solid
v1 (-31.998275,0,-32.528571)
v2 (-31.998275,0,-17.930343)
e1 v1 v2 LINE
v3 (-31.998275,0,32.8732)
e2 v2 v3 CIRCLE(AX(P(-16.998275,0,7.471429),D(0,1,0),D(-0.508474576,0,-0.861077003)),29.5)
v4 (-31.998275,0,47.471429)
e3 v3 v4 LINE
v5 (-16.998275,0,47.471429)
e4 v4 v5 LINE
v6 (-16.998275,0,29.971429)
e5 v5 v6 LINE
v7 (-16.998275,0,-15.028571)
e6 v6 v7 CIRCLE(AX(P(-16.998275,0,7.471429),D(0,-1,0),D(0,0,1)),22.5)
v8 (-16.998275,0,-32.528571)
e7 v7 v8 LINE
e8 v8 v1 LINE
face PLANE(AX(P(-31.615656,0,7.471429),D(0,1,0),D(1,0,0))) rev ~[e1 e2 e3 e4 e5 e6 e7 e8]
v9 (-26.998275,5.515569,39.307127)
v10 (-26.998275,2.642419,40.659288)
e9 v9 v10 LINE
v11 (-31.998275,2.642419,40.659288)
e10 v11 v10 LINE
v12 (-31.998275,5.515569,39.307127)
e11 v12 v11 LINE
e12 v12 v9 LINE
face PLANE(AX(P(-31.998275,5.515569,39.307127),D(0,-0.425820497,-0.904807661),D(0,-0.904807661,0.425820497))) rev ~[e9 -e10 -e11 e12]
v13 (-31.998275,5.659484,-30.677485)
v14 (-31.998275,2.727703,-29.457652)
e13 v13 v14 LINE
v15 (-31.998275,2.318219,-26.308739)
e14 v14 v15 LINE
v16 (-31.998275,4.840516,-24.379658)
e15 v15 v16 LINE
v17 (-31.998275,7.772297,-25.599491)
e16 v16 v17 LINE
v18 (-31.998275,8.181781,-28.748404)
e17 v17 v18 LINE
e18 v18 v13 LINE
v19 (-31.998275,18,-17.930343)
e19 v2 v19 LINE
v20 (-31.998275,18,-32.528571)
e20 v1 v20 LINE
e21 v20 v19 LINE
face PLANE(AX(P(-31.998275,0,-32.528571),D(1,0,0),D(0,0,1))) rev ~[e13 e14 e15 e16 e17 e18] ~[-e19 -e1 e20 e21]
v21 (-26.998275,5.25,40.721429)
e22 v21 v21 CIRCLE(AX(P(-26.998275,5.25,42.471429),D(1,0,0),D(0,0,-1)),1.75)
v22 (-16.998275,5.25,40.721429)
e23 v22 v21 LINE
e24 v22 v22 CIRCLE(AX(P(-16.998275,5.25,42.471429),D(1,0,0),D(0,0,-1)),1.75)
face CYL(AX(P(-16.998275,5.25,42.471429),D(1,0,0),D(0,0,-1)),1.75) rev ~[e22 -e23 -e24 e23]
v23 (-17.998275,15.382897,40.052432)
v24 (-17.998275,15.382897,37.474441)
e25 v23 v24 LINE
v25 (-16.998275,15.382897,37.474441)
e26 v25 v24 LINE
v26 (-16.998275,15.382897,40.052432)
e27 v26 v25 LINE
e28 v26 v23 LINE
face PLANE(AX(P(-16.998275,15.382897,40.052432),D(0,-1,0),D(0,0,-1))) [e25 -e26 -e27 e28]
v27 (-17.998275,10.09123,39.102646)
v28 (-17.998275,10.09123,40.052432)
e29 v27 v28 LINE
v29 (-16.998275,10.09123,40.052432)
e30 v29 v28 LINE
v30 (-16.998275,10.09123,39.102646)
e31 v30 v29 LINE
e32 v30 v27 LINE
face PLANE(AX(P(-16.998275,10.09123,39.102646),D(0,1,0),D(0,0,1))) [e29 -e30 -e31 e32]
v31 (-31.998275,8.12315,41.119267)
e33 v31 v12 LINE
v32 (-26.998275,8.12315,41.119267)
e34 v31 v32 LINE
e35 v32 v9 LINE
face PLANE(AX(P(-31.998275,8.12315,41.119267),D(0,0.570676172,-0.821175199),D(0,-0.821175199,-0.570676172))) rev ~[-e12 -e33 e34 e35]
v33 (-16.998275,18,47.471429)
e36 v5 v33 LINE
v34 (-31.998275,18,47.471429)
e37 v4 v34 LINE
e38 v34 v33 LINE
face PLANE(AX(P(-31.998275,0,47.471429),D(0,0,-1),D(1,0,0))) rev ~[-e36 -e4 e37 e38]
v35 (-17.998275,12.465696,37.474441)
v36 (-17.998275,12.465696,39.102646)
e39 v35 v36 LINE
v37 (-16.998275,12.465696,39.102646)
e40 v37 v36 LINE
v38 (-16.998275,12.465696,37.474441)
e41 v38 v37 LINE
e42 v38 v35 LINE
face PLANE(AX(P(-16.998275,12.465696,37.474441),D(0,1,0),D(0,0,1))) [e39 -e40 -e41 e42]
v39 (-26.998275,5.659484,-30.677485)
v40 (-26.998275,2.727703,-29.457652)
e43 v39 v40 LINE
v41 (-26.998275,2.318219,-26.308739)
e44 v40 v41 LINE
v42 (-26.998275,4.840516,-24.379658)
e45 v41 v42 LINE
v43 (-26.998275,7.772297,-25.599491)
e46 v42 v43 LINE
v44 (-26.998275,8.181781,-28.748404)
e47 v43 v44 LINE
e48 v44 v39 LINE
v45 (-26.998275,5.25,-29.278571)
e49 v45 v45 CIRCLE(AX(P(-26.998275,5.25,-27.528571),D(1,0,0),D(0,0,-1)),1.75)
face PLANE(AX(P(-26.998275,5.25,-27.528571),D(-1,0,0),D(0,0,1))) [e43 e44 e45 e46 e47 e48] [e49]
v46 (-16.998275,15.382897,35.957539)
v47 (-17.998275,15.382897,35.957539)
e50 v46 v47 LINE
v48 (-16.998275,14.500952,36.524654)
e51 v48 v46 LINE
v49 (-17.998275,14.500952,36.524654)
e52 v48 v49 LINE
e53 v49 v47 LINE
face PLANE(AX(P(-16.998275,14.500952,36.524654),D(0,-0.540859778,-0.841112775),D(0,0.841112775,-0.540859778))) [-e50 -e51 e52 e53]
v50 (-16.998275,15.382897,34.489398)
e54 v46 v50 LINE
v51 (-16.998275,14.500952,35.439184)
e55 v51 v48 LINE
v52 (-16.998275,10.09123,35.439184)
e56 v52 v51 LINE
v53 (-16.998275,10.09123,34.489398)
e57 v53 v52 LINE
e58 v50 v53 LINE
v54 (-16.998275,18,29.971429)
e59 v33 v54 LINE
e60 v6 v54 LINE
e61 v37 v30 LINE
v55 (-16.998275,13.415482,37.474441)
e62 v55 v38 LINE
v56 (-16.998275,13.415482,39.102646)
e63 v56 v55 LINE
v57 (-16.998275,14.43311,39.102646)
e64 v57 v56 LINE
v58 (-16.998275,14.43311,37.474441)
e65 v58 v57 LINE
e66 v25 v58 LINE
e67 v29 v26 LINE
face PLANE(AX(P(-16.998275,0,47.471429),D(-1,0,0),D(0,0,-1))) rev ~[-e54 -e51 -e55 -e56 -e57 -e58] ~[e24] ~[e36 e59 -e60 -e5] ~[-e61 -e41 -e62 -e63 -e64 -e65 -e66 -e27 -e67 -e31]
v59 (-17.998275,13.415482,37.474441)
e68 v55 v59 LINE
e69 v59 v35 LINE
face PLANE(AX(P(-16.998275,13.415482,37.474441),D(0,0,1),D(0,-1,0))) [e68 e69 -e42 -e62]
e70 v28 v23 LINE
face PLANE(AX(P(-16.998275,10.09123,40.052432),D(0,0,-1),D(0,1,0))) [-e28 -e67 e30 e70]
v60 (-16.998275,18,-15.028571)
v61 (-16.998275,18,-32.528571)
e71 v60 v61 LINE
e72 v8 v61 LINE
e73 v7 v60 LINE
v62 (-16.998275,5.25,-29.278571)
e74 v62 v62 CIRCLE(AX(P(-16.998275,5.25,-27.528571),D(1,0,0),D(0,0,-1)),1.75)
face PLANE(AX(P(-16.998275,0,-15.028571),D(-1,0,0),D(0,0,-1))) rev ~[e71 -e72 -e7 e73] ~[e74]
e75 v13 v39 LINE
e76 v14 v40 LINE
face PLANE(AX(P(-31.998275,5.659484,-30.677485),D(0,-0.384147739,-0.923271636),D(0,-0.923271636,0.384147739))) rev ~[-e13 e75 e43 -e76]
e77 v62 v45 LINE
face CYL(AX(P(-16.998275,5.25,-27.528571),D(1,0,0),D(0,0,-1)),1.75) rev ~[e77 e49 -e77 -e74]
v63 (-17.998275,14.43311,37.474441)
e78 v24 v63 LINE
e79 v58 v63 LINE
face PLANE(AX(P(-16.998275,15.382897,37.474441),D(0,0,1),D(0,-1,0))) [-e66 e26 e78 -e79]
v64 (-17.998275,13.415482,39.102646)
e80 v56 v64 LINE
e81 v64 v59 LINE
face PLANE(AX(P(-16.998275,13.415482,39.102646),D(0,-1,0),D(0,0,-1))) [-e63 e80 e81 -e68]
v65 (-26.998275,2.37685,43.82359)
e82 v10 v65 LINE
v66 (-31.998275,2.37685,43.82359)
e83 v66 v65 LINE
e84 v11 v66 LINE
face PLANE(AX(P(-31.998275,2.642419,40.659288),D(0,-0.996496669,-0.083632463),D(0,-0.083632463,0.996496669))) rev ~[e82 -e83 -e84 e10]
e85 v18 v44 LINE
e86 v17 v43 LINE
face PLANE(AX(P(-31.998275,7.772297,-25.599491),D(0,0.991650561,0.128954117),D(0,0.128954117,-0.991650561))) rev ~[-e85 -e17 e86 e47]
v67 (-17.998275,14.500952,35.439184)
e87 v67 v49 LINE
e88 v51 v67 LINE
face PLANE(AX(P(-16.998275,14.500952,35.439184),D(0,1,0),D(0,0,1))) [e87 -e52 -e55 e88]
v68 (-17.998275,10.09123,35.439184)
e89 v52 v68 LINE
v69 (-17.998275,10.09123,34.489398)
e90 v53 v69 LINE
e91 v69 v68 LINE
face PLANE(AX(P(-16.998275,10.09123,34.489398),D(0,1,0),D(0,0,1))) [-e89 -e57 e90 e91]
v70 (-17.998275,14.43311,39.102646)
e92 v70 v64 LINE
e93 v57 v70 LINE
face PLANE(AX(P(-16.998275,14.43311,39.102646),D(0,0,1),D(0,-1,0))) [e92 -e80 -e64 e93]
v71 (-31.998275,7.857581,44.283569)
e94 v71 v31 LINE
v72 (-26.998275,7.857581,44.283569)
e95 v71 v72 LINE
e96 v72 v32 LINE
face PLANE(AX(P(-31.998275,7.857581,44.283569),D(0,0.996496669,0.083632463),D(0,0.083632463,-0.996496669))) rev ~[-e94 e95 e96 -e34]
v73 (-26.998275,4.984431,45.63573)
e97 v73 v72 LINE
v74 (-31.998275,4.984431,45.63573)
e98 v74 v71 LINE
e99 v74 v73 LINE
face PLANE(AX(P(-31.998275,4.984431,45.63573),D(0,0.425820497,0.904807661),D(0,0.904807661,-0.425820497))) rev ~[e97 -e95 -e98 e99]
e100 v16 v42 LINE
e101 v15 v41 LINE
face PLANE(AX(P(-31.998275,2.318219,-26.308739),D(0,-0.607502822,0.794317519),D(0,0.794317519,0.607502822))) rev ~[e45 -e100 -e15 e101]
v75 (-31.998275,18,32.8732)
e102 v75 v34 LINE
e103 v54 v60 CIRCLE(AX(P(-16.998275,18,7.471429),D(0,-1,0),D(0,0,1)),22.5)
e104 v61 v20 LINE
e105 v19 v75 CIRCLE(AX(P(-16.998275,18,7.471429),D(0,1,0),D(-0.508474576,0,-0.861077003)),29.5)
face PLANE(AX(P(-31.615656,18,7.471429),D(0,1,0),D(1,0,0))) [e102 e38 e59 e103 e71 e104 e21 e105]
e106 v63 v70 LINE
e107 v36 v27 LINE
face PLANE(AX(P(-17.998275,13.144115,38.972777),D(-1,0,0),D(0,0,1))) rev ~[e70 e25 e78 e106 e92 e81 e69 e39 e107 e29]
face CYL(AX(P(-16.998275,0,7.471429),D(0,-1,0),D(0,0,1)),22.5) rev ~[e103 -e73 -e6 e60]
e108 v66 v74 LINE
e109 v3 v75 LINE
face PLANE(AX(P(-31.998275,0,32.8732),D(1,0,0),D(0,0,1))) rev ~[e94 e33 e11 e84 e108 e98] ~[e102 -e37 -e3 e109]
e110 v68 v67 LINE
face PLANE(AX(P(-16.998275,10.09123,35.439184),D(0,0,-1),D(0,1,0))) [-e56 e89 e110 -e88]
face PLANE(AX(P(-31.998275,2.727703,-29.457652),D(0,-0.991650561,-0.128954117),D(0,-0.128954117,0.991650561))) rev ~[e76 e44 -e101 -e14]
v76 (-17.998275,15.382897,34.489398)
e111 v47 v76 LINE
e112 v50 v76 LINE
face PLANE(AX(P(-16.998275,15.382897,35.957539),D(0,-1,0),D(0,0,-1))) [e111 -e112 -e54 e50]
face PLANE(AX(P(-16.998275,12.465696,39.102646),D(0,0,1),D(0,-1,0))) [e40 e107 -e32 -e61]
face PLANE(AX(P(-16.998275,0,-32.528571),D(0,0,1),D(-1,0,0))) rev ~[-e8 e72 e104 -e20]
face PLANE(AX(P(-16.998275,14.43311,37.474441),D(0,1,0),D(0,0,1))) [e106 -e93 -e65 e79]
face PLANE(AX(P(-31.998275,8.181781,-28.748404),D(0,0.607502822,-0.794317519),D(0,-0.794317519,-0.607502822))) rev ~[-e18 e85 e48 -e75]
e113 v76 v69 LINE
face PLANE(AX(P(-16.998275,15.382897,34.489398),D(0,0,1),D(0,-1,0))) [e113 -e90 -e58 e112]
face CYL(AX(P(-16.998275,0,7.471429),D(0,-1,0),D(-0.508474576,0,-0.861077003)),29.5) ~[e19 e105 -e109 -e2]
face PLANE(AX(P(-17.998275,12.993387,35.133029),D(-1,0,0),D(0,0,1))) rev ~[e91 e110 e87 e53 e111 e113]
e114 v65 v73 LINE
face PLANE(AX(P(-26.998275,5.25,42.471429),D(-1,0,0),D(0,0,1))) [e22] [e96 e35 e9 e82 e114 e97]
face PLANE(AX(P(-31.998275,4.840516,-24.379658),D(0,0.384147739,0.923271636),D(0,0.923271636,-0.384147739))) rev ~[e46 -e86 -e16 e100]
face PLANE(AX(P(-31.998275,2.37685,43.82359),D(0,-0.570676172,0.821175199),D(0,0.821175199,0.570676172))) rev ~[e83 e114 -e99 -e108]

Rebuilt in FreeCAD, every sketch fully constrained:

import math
import FreeCAD as App
import Part
import Sketcher
from FreeCAD import Vector
Q = App.Units.Quantity


def add_polygon(sketch, points):
    """Adds a closed chain of lines whose ends are joined by coincident constraints."""
    first, n = sketch.GeometryCount, len(points)
    for a, b in zip(points, points[1:] + points[:1]):
        sketch.addGeometry(Part.LineSegment(App.Vector(*a, 0), App.Vector(*b, 0)), False)
    for i in range(n):
        sketch.addConstraint(Sketcher.Constraint("Coincident", first + i, 2, first + (i + 1) % n, 1))

doc = App.newDocument("Part")
body = doc.addObject("PartDesign::Body", "Body")

sketch1 = body.newObject("Sketcher::SketchObject", "Sketch")
sketch1.AttachmentSupport = (doc.getObject("XZ_Plane"), [""])
sketch1.MapMode = "FlatFace"
sketch1.addGeometry(Part.ArcOfCircle(Part.Circle(Vector(-17, 7, 0), Vector(0, 0, 1), 30), math.radians(121), math.radians(239)), False)
sketch1.addGeometry(Part.LineSegment(Vector(-32, 33, 0), Vector(-32, 47, 0)), False)
sketch1.addGeometry(Part.LineSegment(Vector(-32, 47, 0), Vector(-17, 47, 0)), False)
sketch1.addGeometry(Part.LineSegment(Vector(-17, 47, 0), Vector(-17, 30, 0)), False)
sketch1.addGeometry(Part.ArcOfCircle(Part.Circle(Vector(-17, 7, 0), Vector(0, 0, 1), 22), math.radians(90), math.radians(270)), False)
sketch1.addGeometry(Part.LineSegment(Vector(-17, -15, 0), Vector(-17, -33, 0)), False)
sketch1.addGeometry(Part.LineSegment(Vector(-17, -33, 0), Vector(-32, -33, 0)), False)
sketch1.addGeometry(Part.LineSegment(Vector(-32, -33, 0), Vector(-32, -18, 0)), False)
sketch1.addConstraint(Sketcher.Constraint("Coincident", 0, 1, 1, 1))
sketch1.addConstraint(Sketcher.Constraint("Coincident", 1, 2, 2, 1))
sketch1.addConstraint(Sketcher.Constraint("Coincident", 2, 2, 3, 1))
sketch1.addConstraint(Sketcher.Constraint("Coincident", 3, 2, 4, 1))
sketch1.addConstraint(Sketcher.Constraint("Coincident", 4, 2, 5, 1))
sketch1.addConstraint(Sketcher.Constraint("Coincident", 5, 2, 6, 1))
sketch1.addConstraint(Sketcher.Constraint("Coincident", 6, 2, 7, 1))
sketch1.addConstraint(Sketcher.Constraint("Coincident", 7, 2, 0, 2))
sketch1.addConstraint(Sketcher.Constraint("Vertical", 1))
sketch1.addConstraint(Sketcher.Constraint("Horizontal", 2))
sketch1.addConstraint(Sketcher.Constraint("Vertical", 3))
sketch1.addConstraint(Sketcher.Constraint("Vertical", 5))
sketch1.addConstraint(Sketcher.Constraint("Horizontal", 6))
sketch1.addConstraint(Sketcher.Constraint("Vertical", 7))
sketch1.addConstraint(Sketcher.Constraint("Coincident", 4, 3, 0, 3))
sketch1.addConstraint(Sketcher.Constraint("Vertical", 4, 3, 2, 2))
sketch1.addConstraint(Sketcher.Constraint("Vertical", 3, 2, 4, 2))
sketch1.addConstraint(Sketcher.Constraint("Vertical", 1, 2, 6, 2))
sketch1.addConstraint(Sketcher.Constraint("Equal", 3, 5))
sketch1.addConstraint(Sketcher.Constraint("Radius", 0, Q("29.5 mm")))
sketch1.addConstraint(Sketcher.Constraint("Radius", 4, Q("22.5 mm")))
sketch1.addConstraint(Sketcher.Constraint("DistanceX", 2, 1, 2, 2, Q("15 mm")))
sketch1.addConstraint(Sketcher.Constraint("DistanceY", 3, 2, 3, 1, Q("17.5 mm")))
sketch1.addConstraint(Sketcher.Constraint("DistanceY", -1, 1, 0, 1, Q("32.8732 mm")))
sketch1.addConstraint(Sketcher.Constraint("DistanceX", 0, 3, -1, 1, Q("16.998275 mm")))
pad1 = body.newObject("PartDesign::Pad", "Pad")
pad1.Profile = sketch1
pad1.Length = 18
pad1.Reversed = True

sketch2 = body.newObject("Sketcher::SketchObject", "Sketch001")
sketch2.AttachmentSupport = (doc.getObject("YZ_Plane"), [""])
sketch2.MapMode = "FlatFace"
sketch2.AttachmentOffset = App.Placement(Vector(0, 0, -16.998275), App.Rotation())
sketch2.addGeometry(Part.Circle(Vector(5.2, 42.5, 0), Vector(0, 0, 1), 1.8), False)
sketch2.addGeometry(Part.Circle(Vector(5.2, -27.5, 0), Vector(0, 0, 1), 1.8), False)
sketch2.addConstraint(Sketcher.Constraint("Equal", 0, 1))
sketch2.addConstraint(Sketcher.Constraint("Vertical", 0, 3, 1, 3))
sketch2.addConstraint(Sketcher.Constraint("Diameter", 0, Q("3.5 mm")))
sketch2.addConstraint(Sketcher.Constraint("DistanceY", 1, 3, 0, 3, Q("70 mm")))
sketch2.addConstraint(Sketcher.Constraint("DistanceX", -1, 1, 0, 3, Q("5.25 mm")))
sketch2.addConstraint(Sketcher.Constraint("DistanceY", -1, 1, 0, 3, Q("42.471429 mm")))
pocket1 = body.newObject("PartDesign::Pocket", "Pocket")
pocket1.Profile = sketch2
pocket1.Type = "ThroughAll"

sketch3 = body.newObject("Sketcher::SketchObject", "Sketch002")
sketch3.AttachmentSupport = (doc.getObject("YZ_Plane"), [""])
sketch3.MapMode = "FlatFace"
sketch3.AttachmentOffset = App.Placement(Vector(0, 0, -16.998275), App.Rotation())
add_polygon(sketch3, [(15.4, 37.5), (15.4, 40.1), (10.1, 40.1), (10.1, 39.1), (12.5, 39.1), (12.5, 37.5), (13.4, 37.5), (13.4, 39.1), (14.4, 39.1), (14.4, 37.5)])
add_polygon(sketch3, [(15.4, 34.5), (15.4, 36), (14.5, 36.5), (14.5, 35.4), (10.1, 35.4), (10.1, 34.5)])
sketch3.addConstraint(Sketcher.Constraint("Vertical", 0))
sketch3.addConstraint(Sketcher.Constraint("Horizontal", 1))
sketch3.addConstraint(Sketcher.Constraint("Vertical", 2))
sketch3.addConstraint(Sketcher.Constraint("Horizontal", 3))
sketch3.addConstraint(Sketcher.Constraint("Vertical", 4))
sketch3.addConstraint(Sketcher.Constraint("Horizontal", 5))
sketch3.addConstraint(Sketcher.Constraint("Vertical", 6))
sketch3.addConstraint(Sketcher.Constraint("Horizontal", 7))
sketch3.addConstraint(Sketcher.Constraint("Vertical", 8))
sketch3.addConstraint(Sketcher.Constraint("Horizontal", 9))
sketch3.addConstraint(Sketcher.Constraint("Vertical", 10))
sketch3.addConstraint(Sketcher.Constraint("Vertical", 12))
sketch3.addConstraint(Sketcher.Constraint("Horizontal", 13))
sketch3.addConstraint(Sketcher.Constraint("Vertical", 14))
sketch3.addConstraint(Sketcher.Constraint("Horizontal", 15))
sketch3.addConstraint(Sketcher.Constraint("Horizontal", 3, 2, 6, 2))
sketch3.addConstraint(Sketcher.Constraint("Horizontal", 5, 2, 8, 2))
sketch3.addConstraint(Sketcher.Constraint("Vertical", 9, 2, 10, 2))
sketch3.addConstraint(Sketcher.Constraint("Vertical", 2, 2, 13, 2))
sketch3.addConstraint(Sketcher.Constraint("Equal", 5, 9))
sketch3.addConstraint(Sketcher.Constraint("Equal", 9, 2))
sketch3.addConstraint(Sketcher.Constraint("Equal", 2, 14))
sketch3.addConstraint(Sketcher.Constraint("DistanceX", 7, 1, 7, 2, Q("1.017628 mm")))
sketch3.addConstraint(Sketcher.Constraint("DistanceY", 0, 1, 0, 2, Q("2.577991 mm")))
sketch3.addConstraint(Sketcher.Constraint("DistanceY", 10, 1, 10, 2, Q("1.468141 mm")))
sketch3.addConstraint(Sketcher.Constraint("DistanceY", 12, 2, 12, 1, Q("1.08547 mm")))
sketch3.addConstraint(Sketcher.Constraint("DistanceX", 3, 2, 0, 2, Q("2.917201 mm")))
sketch3.addConstraint(Sketcher.Constraint("DistanceX", 1, 2, 1, 1, Q("5.291667 mm")))
sketch3.addConstraint(Sketcher.Constraint("DistanceX", 13, 2, 13, 1, Q("4.409722 mm")))
sketch3.addConstraint(Sketcher.Constraint("DistanceX", -1, 1, 1, 2, Q("10.09123 mm")))
sketch3.addConstraint(Sketcher.Constraint("DistanceY", -1, 1, 4, 2, Q("37.474441 mm")))
sketch3.addConstraint(Sketcher.Constraint("DistanceY", -1, 1, 10, 2, Q("35.957539 mm")))
pocket2 = body.newObject("PartDesign::Pocket", "Pocket001")
pocket2.Profile = sketch3
pocket2.Length = 1

sketch4 = body.newObject("Sketcher::SketchObject", "Sketch003")
sketch4.AttachmentSupport = (doc.getObject("YZ_Plane"), [""])
sketch4.MapMode = "FlatFace"
sketch4.AttachmentOffset = App.Placement(Vector(0, 0, -31.998275), App.Rotation())
add_polygon(sketch4, [(2.3, -26.3), (4.8, -24.4), (7.8, -25.6), (8.2, -28.7), (5.7, -30.7), (2.7, -29.5)])
add_polygon(sketch4, [(2.4, 43.8), (5, 45.6), (7.9, 44.3), (8.1, 41.1), (5.5, 39.3), (2.6, 40.7)])
sketch4.addConstraint(Sketcher.Constraint("Parallel", 0, 3))
sketch4.addConstraint(Sketcher.Constraint("Parallel", 1, 4))
sketch4.addConstraint(Sketcher.Constraint("Parallel", 2, 5))
sketch4.addConstraint(Sketcher.Constraint("Parallel", 6, 9))
sketch4.addConstraint(Sketcher.Constraint("Parallel", 7, 10))
sketch4.addConstraint(Sketcher.Constraint("Parallel", 8, 11))
sketch4.addConstraint(Sketcher.Constraint("Equal", 0, 1))
sketch4.addConstraint(Sketcher.Constraint("Equal", 1, 2))
sketch4.addConstraint(Sketcher.Constraint("Equal", 2, 3))
sketch4.addConstraint(Sketcher.Constraint("Equal", 5, 6))
sketch4.addConstraint(Sketcher.Constraint("Equal", 6, 7))
sketch4.addConstraint(Sketcher.Constraint("Equal", 7, 8))
sketch4.addConstraint(Sketcher.Constraint("Equal", 8, 9))
sketch4.addConstraint(Sketcher.Constraint("DistanceX", 7, 2, 2, 2, Q("0.3242 mm")))
sketch4.addConstraint(Sketcher.Constraint("DistanceY", 8, 2, 7, 2, Q("3.164302 mm")))
sketch4.addConstraint(Sketcher.Constraint("DistanceX", 11, 2, 8, 2, Q("5.7463 mm")))
sketch4.addConstraint(Sketcher.Constraint("DistanceY", 1, 2, -1, 1, Q("25.599491 mm")))
sketch4.addConstraint(Sketcher.Constraint("DistanceX", -1, 1, 2, 2, Q("8.181781 mm")))
sketch4.addConstraint(Sketcher.Constraint("DistanceY", 4, 2, -1, 1, Q("29.457652 mm")))
sketch4.addConstraint(Sketcher.Constraint("DistanceX", -1, 1, 5, 2, Q("2.318219 mm")))
sketch4.addConstraint(Sketcher.Constraint("DistanceY", 5, 2, -1, 1, Q("26.308739 mm")))
sketch4.addConstraint(Sketcher.Constraint("DistanceX", -1, 1, 6, 2, Q("4.984431 mm")))
sketch4.addConstraint(Sketcher.Constraint("DistanceY", -1, 1, 6, 2, Q("45.63573 mm")))
sketch4.addConstraint(Sketcher.Constraint("DistanceY", -1, 1, 7, 2, Q("44.283569 mm")))
pocket3 = body.newObject("PartDesign::Pocket", "Pocket002")
pocket3.Profile = sketch4
pocket3.Length = 5
pocket3.Reversed = True

doc.recompute()
